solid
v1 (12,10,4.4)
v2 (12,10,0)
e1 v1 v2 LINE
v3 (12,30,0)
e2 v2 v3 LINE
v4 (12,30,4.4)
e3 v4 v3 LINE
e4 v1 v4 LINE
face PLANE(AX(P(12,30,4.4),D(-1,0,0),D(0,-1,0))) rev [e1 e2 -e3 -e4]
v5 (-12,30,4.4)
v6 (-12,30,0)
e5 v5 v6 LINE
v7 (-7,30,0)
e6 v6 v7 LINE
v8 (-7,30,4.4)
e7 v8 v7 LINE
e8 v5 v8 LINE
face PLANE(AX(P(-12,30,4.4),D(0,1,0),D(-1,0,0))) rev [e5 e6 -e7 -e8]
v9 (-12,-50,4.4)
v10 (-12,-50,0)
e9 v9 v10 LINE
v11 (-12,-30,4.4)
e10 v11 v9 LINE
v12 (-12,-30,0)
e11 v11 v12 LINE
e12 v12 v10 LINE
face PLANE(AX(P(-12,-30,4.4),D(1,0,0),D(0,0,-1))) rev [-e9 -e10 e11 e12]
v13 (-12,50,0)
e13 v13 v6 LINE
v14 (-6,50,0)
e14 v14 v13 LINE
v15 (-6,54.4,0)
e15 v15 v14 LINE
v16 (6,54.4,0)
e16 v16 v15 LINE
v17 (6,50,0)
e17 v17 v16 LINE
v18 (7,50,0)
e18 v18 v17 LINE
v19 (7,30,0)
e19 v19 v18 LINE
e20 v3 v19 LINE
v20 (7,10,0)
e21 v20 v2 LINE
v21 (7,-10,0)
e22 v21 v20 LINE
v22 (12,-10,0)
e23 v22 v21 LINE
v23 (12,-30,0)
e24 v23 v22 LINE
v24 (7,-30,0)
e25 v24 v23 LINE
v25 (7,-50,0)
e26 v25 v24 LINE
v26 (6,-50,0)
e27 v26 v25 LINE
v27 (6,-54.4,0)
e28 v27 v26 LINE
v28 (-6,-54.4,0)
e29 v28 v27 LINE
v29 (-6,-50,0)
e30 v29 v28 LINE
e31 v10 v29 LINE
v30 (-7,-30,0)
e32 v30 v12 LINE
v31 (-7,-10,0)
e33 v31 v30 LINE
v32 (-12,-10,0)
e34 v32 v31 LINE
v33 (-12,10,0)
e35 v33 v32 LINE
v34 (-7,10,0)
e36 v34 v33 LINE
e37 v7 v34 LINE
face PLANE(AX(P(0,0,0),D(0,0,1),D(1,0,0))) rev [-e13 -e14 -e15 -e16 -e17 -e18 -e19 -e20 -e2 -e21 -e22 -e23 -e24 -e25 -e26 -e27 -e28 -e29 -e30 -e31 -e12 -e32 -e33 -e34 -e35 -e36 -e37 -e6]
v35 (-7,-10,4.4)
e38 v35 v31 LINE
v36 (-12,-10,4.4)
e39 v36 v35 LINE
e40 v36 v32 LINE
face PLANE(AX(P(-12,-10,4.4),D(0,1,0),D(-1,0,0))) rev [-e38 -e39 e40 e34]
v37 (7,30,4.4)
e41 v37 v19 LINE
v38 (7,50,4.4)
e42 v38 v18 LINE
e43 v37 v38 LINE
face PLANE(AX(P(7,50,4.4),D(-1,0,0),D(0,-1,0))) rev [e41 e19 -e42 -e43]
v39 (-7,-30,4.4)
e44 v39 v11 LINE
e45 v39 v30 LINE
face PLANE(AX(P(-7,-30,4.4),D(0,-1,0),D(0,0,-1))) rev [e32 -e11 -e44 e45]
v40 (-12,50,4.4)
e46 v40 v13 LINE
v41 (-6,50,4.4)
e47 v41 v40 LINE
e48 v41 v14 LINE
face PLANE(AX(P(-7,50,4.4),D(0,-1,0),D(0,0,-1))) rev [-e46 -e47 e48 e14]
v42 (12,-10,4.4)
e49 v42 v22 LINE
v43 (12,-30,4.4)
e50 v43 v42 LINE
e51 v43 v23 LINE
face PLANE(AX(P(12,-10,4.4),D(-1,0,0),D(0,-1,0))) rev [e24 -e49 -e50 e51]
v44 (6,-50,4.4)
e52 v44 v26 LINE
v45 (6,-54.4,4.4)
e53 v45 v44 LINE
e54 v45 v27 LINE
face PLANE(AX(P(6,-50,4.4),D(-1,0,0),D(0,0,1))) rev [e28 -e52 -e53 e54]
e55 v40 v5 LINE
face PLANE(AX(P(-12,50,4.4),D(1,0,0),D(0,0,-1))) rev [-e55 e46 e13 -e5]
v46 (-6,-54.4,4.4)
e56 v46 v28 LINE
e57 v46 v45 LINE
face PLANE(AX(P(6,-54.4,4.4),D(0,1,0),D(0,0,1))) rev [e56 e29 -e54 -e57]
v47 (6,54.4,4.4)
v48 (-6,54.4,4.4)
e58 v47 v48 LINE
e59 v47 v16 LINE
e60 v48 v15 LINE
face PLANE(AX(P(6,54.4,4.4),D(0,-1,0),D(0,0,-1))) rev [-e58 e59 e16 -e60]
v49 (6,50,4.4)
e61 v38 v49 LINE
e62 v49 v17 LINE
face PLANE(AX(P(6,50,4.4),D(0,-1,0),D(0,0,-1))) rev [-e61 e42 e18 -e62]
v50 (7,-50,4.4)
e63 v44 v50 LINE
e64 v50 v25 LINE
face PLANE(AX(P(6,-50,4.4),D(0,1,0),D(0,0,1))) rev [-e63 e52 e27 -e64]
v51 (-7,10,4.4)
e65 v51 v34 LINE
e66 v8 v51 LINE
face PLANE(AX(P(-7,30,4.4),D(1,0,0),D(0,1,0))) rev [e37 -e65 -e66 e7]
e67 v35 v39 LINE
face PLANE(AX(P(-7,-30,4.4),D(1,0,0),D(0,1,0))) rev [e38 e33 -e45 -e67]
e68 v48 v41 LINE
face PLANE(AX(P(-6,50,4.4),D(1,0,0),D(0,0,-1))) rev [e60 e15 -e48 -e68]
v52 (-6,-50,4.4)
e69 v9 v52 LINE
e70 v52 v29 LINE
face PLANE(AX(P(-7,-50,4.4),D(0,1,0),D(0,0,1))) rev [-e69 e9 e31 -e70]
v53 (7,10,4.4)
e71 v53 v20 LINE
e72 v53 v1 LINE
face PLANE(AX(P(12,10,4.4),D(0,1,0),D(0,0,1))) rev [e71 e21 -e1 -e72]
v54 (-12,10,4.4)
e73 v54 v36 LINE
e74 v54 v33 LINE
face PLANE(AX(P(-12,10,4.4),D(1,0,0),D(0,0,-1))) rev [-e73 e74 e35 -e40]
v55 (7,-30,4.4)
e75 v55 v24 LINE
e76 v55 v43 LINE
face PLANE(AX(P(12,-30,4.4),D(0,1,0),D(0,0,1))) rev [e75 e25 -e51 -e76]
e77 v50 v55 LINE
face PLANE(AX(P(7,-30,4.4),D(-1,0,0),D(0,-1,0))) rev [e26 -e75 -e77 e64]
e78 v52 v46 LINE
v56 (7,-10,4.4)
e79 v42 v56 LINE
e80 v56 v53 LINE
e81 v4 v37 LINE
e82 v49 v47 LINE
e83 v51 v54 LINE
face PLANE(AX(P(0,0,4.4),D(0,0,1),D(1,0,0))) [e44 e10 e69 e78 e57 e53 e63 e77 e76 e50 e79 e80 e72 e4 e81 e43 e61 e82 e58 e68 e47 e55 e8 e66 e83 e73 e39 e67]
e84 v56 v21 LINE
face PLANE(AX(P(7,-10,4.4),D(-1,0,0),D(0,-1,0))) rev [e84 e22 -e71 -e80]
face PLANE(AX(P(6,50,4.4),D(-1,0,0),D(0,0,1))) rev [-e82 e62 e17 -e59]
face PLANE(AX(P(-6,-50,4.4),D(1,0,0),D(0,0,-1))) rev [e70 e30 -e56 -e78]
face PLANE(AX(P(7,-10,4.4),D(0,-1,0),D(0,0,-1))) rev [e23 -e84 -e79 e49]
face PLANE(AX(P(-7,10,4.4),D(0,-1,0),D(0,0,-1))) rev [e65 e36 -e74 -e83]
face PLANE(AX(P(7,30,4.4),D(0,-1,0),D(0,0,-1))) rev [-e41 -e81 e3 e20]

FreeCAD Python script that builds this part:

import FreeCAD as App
import Part
import Sketcher

V = App.Vector
Q = App.Units.Quantity

doc = App.newDocument("Part")
body = doc.addObject("PartDesign::Body", "Body")

# Sketch on XY plane
sketch1 = body.newObject("Sketcher::SketchObject", "Sketch")
sketch1.AttachmentSupport = (doc.getObject("XY_Plane"), [""])
sketch1.MapMode = "FlatFace"
sketch1.addGeometry(Part.LineSegment(V(6, 50, 0), V(6, 54.4, 0)), False)
sketch1.addGeometry(Part.LineSegment(V(6, 54.4, 0), V(-6, 54.4, 0)), False)
sketch1.addGeometry(Part.LineSegment(V(-6, 54.4, 0), V(-6, 50, 0)), False)
sketch1.addGeometry(Part.LineSegment(V(-6, 50, 0), V(-12, 50, 0)), False)
sketch1.addGeometry(Part.LineSegment(V(-12, 50, 0), V(-12, 30, 0)), False)
sketch1.addGeometry(Part.LineSegment(V(-12, 30, 0), V(-7, 30, 0)), False)
sketch1.addGeometry(Part.LineSegment(V(-7, 30, 0), V(-7, 10, 0)), False)
sketch1.addGeometry(Part.LineSegment(V(-7, 10, 0), V(-12, 10, 0)), False)
sketch1.addGeometry(Part.LineSegment(V(-12, 10, 0), V(-12, -10, 0)), False)
sketch1.addGeometry(Part.LineSegment(V(-12, -10, 0), V(-7, -10, 0)), False)
sketch1.addGeometry(Part.LineSegment(V(-7, -10, 0), V(-7, -30, 0)), False)
sketch1.addGeometry(Part.LineSegment(V(-7, -30, 0), V(-12, -30, 0)), False)
sketch1.addGeometry(Part.LineSegment(V(-12, -30, 0), V(-12, -50, 0)), False)
sketch1.addGeometry(Part.LineSegment(V(-12, -50, 0), V(-6, -50, 0)), False)
sketch1.addGeometry(Part.LineSegment(V(-6, -50, 0), V(-6, -54.4, 0)), False)
sketch1.addGeometry(Part.LineSegment(V(-6, -54.4, 0), V(6, -54.4, 0)), False)
sketch1.addGeometry(Part.LineSegment(V(6, -54.4, 0), V(6, -50, 0)), False)
sketch1.addGeometry(Part.LineSegment(V(6, -50, 0), V(7, -50, 0)), False)
sketch1.addGeometry(Part.LineSegment(V(7, -50, 0), V(7, -30, 0)), False)
sketch1.addGeometry(Part.LineSegment(V(7, -30, 0), V(12, -30, 0)), False)
sketch1.addGeometry(Part.LineSegment(V(12, -30, 0), V(12, -10, 0)), False)
sketch1.addGeometry(Part.LineSegment(V(12, -10, 0), V(7, -10, 0)), False)
sketch1.addGeometry(Part.LineSegment(V(7, -10, 0), V(7, 10, 0)), False)
sketch1.addGeometry(Part.LineSegment(V(7, 10, 0), V(12, 10, 0)), False)
sketch1.addGeometry(Part.LineSegment(V(12, 10, 0), V(12, 30, 0)), False)
sketch1.addGeometry(Part.LineSegment(V(12, 30, 0), V(7, 30, 0)), False)
sketch1.addGeometry(Part.LineSegment(V(7, 30, 0), V(7, 50, 0)), False)
sketch1.addGeometry(Part.LineSegment(V(7, 50, 0), V(6, 50, 0)), False)
sketch1.addConstraint(Sketcher.Constraint("Coincident", 0, 2, 1, 1))
sketch1.addConstraint(Sketcher.Constraint("Coincident", 1, 2, 2, 1))
sketch1.addConstraint(Sketcher.Constraint("Coincident", 2, 2, 3, 1))
sketch1.addConstraint(Sketcher.Constraint("Coincident", 3, 2, 4, 1))
sketch1.addConstraint(Sketcher.Constraint("Coincident", 4, 2, 5, 1))
sketch1.addConstraint(Sketcher.Constraint("Coincident", 5, 2, 6, 1))
sketch1.addConstraint(Sketcher.Constraint("Coincident", 6, 2, 7, 1))
sketch1.addConstraint(Sketcher.Constraint("Coincident", 7, 2, 8, 1))
sketch1.addConstraint(Sketcher.Constraint("Coincident", 8, 2, 9, 1))
sketch1.addConstraint(Sketcher.Constraint("Coincident", 9, 2, 10, 1))
sketch1.addConstraint(Sketcher.Constraint("Coincident", 10, 2, 11, 1))
sketch1.addConstraint(Sketcher.Constraint("Coincident", 11, 2, 12, 1))
sketch1.addConstraint(Sketcher.Constraint("Coincident", 12, 2, 13, 1))
sketch1.addConstraint(Sketcher.Constraint("Coincident", 13, 2, 14, 1))
sketch1.addConstraint(Sketcher.Constraint("Coincident", 14, 2, 15, 1))
sketch1.addConstraint(Sketcher.Constraint("Coincident", 15, 2, 16, 1))
sketch1.addConstraint(Sketcher.Constraint("Coincident", 16, 2, 17, 1))
sketch1.addConstraint(Sketcher.Constraint("Coincident", 17, 2, 18, 1))
sketch1.addConstraint(Sketcher.Constraint("Coincident", 18, 2, 19, 1))
sketch1.addConstraint(Sketcher.Constraint("Coincident", 19, 2, 20, 1))
sketch1.addConstraint(Sketcher.Constraint("Coincident", 20, 2, 21, 1))
sketch1.addConstraint(Sketcher.Constraint("Coincident", 21, 2, 22, 1))
sketch1.addConstraint(Sketcher.Constraint("Coincident", 22, 2, 23, 1))
sketch1.addConstraint(Sketcher.Constraint("Coincident", 23, 2, 24, 1))
sketch1.addConstraint(Sketcher.Constraint("Coincident", 24, 2, 25, 1))
sketch1.addConstraint(Sketcher.Constraint("Coincident", 25, 2, 26, 1))
sketch1.addConstraint(Sketcher.Constraint("Coincident", 26, 2, 27, 1))
sketch1.addConstraint(Sketcher.Constraint("Coincident", 27, 2, 0, 1))
sketch1.addConstraint(Sketcher.Constraint("Vertical", 0))
sketch1.addConstraint(Sketcher.Constraint("Horizontal", 1))
sketch1.addConstraint(Sketcher.Constraint("Vertical", 2))
sketch1.addConstraint(Sketcher.Constraint("Horizontal", 3))
sketch1.addConstraint(Sketcher.Constraint("Vertical", 4))
sketch1.addConstraint(Sketcher.Constraint("Horizontal", 5))
sketch1.addConstraint(Sketcher.Constraint("Vertical", 6))
sketch1.addConstraint(Sketcher.Constraint("Horizontal", 7))
sketch1.addConstraint(Sketcher.Constraint("Vertical", 8))
sketch1.addConstraint(Sketcher.Constraint("Horizontal", 9))
sketch1.addConstraint(Sketcher.Constraint("Vertical", 10))
sketch1.addConstraint(Sketcher.Constraint("Horizontal", 11))
sketch1.addConstraint(Sketcher.Constraint("Vertical", 12))
sketch1.addConstraint(Sketcher.Constraint("Horizontal", 13))
sketch1.addConstraint(Sketcher.Constraint("Vertical", 14))
sketch1.addConstraint(Sketcher.Constraint("Horizontal", 15))
sketch1.addConstraint(Sketcher.Constraint("Vertical", 16))
sketch1.addConstraint(Sketcher.Constraint("Horizontal", 17))
sketch1.addConstraint(Sketcher.Constraint("Vertical", 18))
sketch1.addConstraint(Sketcher.Constraint("Horizontal", 19))
sketch1.addConstraint(Sketcher.Constraint("Vertical", 20))
sketch1.addConstraint(Sketcher.Constraint("Horizontal", 21))
sketch1.addConstraint(Sketcher.Constraint("Vertical", 22))
sketch1.addConstraint(Sketcher.Constraint("Horizontal", 23))
sketch1.addConstraint(Sketcher.Constraint("Vertical", 24))
sketch1.addConstraint(Sketcher.Constraint("Horizontal", 25))
sketch1.addConstraint(Sketcher.Constraint("Vertical", 26))
sketch1.addConstraint(Sketcher.Constraint("Horizontal", 27))
sketch1.addConstraint(Sketcher.Constraint("Symmetric", 0, 2, 14, 2, -1, 1))
sketch1.addConstraint(Sketcher.Constraint("Symmetric", 2, 2, 16, 2, -1, 1))
sketch1.addConstraint(Sketcher.Constraint("Symmetric", 5, 2, 18, 2, -1, 1))
sketch1.addConstraint(Sketcher.Constraint("Symmetric", 7, 2, 20, 2, -1, 1))
sketch1.addConstraint(Sketcher.Constraint("Symmetric", 9, 2, 22, 2, -1, 1))
sketch1.addConstraint(Sketcher.Constraint("Symmetric", 11, 2, 24, 2, -1, 1))
sketch1.addConstraint(Sketcher.Constraint("Symmetric", 13, 2, 16, 2, -2))
sketch1.addConstraint(Sketcher.Constraint("Symmetric", 10, 2, 18, 2, -2))
sketch1.addConstraint(Sketcher.Constraint("Symmetric", 7, 2, 23, 2, -2))
sketch1.addConstraint(Sketcher.Constraint("Symmetric", 17, 2, 26, 2, -1))
sketch1.addConstraint(Sketcher.Constraint("Vertical", 4, 2, 7, 2))
sketch1.addConstraint(Sketcher.Constraint("Equal", 4, 6))
sketch1.addConstraint(Sketcher.Constraint("Equal", 6, 8))
sketch1.addConstraint(Sketcher.Constraint("DistanceX", 1, 2, 1, 1, Q("12 mm")))
sketch1.addConstraint(Sketcher.Constraint("DistanceX", 3, 2, 3, 1, Q("6 mm")))
sketch1.addConstraint(Sketcher.Constraint("DistanceX", 5, 1, 5, 2, Q("5 mm")))
sketch1.addConstraint(Sketcher.Constraint("DistanceY", 4, 2, 4, 1, Q("20 mm")))
sketch1.addConstraint(Sketcher.Constraint("DistanceY", 0, 1, 0, 2, Q("4.4 mm")))
pad1 = body.newObject("PartDesign::Pad", "Pad")
pad1.Profile = sketch1
pad1.Length = 4.4

doc.recompute()
